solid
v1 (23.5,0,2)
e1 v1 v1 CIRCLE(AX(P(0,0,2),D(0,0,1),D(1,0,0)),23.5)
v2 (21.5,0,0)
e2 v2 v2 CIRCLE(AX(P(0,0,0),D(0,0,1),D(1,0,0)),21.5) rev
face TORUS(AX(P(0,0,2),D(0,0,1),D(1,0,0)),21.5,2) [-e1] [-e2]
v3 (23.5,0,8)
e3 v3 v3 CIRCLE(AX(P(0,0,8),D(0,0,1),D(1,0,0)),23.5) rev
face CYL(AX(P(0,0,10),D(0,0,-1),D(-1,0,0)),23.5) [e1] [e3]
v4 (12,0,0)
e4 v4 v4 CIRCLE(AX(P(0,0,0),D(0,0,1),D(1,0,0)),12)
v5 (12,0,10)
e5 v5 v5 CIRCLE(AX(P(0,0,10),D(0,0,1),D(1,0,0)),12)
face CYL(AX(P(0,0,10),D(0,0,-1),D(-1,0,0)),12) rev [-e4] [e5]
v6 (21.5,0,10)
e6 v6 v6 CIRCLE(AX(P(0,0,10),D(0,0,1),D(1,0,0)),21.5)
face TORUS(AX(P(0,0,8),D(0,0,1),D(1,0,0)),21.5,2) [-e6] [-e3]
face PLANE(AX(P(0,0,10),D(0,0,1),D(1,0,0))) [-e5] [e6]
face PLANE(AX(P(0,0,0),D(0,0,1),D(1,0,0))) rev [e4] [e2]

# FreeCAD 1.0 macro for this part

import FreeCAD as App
import Part
import Sketcher


def edges_at(feature, points):
    """Names of the edges that pass closest to the given points."""
    edges = feature.Shape.Edges
    near = lambda p: min(range(len(edges)), key=lambda i: edges[i].distToShape(Part.Vertex(*p))[0])
    return sorted({f"Edge{near(p) + 1}" for p in points})

doc = App.newDocument("Part")
body = doc.addObject("PartDesign::Body", "Body")

# Sketch on XY plane
sketch1 = body.newObject("Sketcher::SketchObject", "Sketch")
sketch1.AttachmentSupport = (doc.getObject("XY_Plane"), [""])
sketch1.MapMode = "FlatFace"
sketch1.addGeometry([
    Part.Circle(App.Vector(0, 0, 0), App.Vector(0, 0, 1), 24),
    Part.Circle(App.Vector(0, 0, 0), App.Vector(0, 0, 1), 12),
], False)
sketch1.addConstraint([
    Sketcher.Constraint("Coincident", 0, 3, -1, 1),
    Sketcher.Constraint("Coincident", 1, 3, -1, 1),
    Sketcher.Constraint("Diameter", 0, 47.0),
    Sketcher.Constraint("Diameter", 1, 24.0),
])
pad1 = body.newObject("PartDesign::Pad", "Pad")
pad1.Profile = sketch1
pad1.Length = 10
doc.recompute()

fillet = body.newObject("PartDesign::Fillet", "Fillet")
fillet.Base = (pad1, edges_at(pad1, [(-23.5, 0, 0), (-23.5, 0, 10)]))
fillet.Radius = 2

doc.recompute()
